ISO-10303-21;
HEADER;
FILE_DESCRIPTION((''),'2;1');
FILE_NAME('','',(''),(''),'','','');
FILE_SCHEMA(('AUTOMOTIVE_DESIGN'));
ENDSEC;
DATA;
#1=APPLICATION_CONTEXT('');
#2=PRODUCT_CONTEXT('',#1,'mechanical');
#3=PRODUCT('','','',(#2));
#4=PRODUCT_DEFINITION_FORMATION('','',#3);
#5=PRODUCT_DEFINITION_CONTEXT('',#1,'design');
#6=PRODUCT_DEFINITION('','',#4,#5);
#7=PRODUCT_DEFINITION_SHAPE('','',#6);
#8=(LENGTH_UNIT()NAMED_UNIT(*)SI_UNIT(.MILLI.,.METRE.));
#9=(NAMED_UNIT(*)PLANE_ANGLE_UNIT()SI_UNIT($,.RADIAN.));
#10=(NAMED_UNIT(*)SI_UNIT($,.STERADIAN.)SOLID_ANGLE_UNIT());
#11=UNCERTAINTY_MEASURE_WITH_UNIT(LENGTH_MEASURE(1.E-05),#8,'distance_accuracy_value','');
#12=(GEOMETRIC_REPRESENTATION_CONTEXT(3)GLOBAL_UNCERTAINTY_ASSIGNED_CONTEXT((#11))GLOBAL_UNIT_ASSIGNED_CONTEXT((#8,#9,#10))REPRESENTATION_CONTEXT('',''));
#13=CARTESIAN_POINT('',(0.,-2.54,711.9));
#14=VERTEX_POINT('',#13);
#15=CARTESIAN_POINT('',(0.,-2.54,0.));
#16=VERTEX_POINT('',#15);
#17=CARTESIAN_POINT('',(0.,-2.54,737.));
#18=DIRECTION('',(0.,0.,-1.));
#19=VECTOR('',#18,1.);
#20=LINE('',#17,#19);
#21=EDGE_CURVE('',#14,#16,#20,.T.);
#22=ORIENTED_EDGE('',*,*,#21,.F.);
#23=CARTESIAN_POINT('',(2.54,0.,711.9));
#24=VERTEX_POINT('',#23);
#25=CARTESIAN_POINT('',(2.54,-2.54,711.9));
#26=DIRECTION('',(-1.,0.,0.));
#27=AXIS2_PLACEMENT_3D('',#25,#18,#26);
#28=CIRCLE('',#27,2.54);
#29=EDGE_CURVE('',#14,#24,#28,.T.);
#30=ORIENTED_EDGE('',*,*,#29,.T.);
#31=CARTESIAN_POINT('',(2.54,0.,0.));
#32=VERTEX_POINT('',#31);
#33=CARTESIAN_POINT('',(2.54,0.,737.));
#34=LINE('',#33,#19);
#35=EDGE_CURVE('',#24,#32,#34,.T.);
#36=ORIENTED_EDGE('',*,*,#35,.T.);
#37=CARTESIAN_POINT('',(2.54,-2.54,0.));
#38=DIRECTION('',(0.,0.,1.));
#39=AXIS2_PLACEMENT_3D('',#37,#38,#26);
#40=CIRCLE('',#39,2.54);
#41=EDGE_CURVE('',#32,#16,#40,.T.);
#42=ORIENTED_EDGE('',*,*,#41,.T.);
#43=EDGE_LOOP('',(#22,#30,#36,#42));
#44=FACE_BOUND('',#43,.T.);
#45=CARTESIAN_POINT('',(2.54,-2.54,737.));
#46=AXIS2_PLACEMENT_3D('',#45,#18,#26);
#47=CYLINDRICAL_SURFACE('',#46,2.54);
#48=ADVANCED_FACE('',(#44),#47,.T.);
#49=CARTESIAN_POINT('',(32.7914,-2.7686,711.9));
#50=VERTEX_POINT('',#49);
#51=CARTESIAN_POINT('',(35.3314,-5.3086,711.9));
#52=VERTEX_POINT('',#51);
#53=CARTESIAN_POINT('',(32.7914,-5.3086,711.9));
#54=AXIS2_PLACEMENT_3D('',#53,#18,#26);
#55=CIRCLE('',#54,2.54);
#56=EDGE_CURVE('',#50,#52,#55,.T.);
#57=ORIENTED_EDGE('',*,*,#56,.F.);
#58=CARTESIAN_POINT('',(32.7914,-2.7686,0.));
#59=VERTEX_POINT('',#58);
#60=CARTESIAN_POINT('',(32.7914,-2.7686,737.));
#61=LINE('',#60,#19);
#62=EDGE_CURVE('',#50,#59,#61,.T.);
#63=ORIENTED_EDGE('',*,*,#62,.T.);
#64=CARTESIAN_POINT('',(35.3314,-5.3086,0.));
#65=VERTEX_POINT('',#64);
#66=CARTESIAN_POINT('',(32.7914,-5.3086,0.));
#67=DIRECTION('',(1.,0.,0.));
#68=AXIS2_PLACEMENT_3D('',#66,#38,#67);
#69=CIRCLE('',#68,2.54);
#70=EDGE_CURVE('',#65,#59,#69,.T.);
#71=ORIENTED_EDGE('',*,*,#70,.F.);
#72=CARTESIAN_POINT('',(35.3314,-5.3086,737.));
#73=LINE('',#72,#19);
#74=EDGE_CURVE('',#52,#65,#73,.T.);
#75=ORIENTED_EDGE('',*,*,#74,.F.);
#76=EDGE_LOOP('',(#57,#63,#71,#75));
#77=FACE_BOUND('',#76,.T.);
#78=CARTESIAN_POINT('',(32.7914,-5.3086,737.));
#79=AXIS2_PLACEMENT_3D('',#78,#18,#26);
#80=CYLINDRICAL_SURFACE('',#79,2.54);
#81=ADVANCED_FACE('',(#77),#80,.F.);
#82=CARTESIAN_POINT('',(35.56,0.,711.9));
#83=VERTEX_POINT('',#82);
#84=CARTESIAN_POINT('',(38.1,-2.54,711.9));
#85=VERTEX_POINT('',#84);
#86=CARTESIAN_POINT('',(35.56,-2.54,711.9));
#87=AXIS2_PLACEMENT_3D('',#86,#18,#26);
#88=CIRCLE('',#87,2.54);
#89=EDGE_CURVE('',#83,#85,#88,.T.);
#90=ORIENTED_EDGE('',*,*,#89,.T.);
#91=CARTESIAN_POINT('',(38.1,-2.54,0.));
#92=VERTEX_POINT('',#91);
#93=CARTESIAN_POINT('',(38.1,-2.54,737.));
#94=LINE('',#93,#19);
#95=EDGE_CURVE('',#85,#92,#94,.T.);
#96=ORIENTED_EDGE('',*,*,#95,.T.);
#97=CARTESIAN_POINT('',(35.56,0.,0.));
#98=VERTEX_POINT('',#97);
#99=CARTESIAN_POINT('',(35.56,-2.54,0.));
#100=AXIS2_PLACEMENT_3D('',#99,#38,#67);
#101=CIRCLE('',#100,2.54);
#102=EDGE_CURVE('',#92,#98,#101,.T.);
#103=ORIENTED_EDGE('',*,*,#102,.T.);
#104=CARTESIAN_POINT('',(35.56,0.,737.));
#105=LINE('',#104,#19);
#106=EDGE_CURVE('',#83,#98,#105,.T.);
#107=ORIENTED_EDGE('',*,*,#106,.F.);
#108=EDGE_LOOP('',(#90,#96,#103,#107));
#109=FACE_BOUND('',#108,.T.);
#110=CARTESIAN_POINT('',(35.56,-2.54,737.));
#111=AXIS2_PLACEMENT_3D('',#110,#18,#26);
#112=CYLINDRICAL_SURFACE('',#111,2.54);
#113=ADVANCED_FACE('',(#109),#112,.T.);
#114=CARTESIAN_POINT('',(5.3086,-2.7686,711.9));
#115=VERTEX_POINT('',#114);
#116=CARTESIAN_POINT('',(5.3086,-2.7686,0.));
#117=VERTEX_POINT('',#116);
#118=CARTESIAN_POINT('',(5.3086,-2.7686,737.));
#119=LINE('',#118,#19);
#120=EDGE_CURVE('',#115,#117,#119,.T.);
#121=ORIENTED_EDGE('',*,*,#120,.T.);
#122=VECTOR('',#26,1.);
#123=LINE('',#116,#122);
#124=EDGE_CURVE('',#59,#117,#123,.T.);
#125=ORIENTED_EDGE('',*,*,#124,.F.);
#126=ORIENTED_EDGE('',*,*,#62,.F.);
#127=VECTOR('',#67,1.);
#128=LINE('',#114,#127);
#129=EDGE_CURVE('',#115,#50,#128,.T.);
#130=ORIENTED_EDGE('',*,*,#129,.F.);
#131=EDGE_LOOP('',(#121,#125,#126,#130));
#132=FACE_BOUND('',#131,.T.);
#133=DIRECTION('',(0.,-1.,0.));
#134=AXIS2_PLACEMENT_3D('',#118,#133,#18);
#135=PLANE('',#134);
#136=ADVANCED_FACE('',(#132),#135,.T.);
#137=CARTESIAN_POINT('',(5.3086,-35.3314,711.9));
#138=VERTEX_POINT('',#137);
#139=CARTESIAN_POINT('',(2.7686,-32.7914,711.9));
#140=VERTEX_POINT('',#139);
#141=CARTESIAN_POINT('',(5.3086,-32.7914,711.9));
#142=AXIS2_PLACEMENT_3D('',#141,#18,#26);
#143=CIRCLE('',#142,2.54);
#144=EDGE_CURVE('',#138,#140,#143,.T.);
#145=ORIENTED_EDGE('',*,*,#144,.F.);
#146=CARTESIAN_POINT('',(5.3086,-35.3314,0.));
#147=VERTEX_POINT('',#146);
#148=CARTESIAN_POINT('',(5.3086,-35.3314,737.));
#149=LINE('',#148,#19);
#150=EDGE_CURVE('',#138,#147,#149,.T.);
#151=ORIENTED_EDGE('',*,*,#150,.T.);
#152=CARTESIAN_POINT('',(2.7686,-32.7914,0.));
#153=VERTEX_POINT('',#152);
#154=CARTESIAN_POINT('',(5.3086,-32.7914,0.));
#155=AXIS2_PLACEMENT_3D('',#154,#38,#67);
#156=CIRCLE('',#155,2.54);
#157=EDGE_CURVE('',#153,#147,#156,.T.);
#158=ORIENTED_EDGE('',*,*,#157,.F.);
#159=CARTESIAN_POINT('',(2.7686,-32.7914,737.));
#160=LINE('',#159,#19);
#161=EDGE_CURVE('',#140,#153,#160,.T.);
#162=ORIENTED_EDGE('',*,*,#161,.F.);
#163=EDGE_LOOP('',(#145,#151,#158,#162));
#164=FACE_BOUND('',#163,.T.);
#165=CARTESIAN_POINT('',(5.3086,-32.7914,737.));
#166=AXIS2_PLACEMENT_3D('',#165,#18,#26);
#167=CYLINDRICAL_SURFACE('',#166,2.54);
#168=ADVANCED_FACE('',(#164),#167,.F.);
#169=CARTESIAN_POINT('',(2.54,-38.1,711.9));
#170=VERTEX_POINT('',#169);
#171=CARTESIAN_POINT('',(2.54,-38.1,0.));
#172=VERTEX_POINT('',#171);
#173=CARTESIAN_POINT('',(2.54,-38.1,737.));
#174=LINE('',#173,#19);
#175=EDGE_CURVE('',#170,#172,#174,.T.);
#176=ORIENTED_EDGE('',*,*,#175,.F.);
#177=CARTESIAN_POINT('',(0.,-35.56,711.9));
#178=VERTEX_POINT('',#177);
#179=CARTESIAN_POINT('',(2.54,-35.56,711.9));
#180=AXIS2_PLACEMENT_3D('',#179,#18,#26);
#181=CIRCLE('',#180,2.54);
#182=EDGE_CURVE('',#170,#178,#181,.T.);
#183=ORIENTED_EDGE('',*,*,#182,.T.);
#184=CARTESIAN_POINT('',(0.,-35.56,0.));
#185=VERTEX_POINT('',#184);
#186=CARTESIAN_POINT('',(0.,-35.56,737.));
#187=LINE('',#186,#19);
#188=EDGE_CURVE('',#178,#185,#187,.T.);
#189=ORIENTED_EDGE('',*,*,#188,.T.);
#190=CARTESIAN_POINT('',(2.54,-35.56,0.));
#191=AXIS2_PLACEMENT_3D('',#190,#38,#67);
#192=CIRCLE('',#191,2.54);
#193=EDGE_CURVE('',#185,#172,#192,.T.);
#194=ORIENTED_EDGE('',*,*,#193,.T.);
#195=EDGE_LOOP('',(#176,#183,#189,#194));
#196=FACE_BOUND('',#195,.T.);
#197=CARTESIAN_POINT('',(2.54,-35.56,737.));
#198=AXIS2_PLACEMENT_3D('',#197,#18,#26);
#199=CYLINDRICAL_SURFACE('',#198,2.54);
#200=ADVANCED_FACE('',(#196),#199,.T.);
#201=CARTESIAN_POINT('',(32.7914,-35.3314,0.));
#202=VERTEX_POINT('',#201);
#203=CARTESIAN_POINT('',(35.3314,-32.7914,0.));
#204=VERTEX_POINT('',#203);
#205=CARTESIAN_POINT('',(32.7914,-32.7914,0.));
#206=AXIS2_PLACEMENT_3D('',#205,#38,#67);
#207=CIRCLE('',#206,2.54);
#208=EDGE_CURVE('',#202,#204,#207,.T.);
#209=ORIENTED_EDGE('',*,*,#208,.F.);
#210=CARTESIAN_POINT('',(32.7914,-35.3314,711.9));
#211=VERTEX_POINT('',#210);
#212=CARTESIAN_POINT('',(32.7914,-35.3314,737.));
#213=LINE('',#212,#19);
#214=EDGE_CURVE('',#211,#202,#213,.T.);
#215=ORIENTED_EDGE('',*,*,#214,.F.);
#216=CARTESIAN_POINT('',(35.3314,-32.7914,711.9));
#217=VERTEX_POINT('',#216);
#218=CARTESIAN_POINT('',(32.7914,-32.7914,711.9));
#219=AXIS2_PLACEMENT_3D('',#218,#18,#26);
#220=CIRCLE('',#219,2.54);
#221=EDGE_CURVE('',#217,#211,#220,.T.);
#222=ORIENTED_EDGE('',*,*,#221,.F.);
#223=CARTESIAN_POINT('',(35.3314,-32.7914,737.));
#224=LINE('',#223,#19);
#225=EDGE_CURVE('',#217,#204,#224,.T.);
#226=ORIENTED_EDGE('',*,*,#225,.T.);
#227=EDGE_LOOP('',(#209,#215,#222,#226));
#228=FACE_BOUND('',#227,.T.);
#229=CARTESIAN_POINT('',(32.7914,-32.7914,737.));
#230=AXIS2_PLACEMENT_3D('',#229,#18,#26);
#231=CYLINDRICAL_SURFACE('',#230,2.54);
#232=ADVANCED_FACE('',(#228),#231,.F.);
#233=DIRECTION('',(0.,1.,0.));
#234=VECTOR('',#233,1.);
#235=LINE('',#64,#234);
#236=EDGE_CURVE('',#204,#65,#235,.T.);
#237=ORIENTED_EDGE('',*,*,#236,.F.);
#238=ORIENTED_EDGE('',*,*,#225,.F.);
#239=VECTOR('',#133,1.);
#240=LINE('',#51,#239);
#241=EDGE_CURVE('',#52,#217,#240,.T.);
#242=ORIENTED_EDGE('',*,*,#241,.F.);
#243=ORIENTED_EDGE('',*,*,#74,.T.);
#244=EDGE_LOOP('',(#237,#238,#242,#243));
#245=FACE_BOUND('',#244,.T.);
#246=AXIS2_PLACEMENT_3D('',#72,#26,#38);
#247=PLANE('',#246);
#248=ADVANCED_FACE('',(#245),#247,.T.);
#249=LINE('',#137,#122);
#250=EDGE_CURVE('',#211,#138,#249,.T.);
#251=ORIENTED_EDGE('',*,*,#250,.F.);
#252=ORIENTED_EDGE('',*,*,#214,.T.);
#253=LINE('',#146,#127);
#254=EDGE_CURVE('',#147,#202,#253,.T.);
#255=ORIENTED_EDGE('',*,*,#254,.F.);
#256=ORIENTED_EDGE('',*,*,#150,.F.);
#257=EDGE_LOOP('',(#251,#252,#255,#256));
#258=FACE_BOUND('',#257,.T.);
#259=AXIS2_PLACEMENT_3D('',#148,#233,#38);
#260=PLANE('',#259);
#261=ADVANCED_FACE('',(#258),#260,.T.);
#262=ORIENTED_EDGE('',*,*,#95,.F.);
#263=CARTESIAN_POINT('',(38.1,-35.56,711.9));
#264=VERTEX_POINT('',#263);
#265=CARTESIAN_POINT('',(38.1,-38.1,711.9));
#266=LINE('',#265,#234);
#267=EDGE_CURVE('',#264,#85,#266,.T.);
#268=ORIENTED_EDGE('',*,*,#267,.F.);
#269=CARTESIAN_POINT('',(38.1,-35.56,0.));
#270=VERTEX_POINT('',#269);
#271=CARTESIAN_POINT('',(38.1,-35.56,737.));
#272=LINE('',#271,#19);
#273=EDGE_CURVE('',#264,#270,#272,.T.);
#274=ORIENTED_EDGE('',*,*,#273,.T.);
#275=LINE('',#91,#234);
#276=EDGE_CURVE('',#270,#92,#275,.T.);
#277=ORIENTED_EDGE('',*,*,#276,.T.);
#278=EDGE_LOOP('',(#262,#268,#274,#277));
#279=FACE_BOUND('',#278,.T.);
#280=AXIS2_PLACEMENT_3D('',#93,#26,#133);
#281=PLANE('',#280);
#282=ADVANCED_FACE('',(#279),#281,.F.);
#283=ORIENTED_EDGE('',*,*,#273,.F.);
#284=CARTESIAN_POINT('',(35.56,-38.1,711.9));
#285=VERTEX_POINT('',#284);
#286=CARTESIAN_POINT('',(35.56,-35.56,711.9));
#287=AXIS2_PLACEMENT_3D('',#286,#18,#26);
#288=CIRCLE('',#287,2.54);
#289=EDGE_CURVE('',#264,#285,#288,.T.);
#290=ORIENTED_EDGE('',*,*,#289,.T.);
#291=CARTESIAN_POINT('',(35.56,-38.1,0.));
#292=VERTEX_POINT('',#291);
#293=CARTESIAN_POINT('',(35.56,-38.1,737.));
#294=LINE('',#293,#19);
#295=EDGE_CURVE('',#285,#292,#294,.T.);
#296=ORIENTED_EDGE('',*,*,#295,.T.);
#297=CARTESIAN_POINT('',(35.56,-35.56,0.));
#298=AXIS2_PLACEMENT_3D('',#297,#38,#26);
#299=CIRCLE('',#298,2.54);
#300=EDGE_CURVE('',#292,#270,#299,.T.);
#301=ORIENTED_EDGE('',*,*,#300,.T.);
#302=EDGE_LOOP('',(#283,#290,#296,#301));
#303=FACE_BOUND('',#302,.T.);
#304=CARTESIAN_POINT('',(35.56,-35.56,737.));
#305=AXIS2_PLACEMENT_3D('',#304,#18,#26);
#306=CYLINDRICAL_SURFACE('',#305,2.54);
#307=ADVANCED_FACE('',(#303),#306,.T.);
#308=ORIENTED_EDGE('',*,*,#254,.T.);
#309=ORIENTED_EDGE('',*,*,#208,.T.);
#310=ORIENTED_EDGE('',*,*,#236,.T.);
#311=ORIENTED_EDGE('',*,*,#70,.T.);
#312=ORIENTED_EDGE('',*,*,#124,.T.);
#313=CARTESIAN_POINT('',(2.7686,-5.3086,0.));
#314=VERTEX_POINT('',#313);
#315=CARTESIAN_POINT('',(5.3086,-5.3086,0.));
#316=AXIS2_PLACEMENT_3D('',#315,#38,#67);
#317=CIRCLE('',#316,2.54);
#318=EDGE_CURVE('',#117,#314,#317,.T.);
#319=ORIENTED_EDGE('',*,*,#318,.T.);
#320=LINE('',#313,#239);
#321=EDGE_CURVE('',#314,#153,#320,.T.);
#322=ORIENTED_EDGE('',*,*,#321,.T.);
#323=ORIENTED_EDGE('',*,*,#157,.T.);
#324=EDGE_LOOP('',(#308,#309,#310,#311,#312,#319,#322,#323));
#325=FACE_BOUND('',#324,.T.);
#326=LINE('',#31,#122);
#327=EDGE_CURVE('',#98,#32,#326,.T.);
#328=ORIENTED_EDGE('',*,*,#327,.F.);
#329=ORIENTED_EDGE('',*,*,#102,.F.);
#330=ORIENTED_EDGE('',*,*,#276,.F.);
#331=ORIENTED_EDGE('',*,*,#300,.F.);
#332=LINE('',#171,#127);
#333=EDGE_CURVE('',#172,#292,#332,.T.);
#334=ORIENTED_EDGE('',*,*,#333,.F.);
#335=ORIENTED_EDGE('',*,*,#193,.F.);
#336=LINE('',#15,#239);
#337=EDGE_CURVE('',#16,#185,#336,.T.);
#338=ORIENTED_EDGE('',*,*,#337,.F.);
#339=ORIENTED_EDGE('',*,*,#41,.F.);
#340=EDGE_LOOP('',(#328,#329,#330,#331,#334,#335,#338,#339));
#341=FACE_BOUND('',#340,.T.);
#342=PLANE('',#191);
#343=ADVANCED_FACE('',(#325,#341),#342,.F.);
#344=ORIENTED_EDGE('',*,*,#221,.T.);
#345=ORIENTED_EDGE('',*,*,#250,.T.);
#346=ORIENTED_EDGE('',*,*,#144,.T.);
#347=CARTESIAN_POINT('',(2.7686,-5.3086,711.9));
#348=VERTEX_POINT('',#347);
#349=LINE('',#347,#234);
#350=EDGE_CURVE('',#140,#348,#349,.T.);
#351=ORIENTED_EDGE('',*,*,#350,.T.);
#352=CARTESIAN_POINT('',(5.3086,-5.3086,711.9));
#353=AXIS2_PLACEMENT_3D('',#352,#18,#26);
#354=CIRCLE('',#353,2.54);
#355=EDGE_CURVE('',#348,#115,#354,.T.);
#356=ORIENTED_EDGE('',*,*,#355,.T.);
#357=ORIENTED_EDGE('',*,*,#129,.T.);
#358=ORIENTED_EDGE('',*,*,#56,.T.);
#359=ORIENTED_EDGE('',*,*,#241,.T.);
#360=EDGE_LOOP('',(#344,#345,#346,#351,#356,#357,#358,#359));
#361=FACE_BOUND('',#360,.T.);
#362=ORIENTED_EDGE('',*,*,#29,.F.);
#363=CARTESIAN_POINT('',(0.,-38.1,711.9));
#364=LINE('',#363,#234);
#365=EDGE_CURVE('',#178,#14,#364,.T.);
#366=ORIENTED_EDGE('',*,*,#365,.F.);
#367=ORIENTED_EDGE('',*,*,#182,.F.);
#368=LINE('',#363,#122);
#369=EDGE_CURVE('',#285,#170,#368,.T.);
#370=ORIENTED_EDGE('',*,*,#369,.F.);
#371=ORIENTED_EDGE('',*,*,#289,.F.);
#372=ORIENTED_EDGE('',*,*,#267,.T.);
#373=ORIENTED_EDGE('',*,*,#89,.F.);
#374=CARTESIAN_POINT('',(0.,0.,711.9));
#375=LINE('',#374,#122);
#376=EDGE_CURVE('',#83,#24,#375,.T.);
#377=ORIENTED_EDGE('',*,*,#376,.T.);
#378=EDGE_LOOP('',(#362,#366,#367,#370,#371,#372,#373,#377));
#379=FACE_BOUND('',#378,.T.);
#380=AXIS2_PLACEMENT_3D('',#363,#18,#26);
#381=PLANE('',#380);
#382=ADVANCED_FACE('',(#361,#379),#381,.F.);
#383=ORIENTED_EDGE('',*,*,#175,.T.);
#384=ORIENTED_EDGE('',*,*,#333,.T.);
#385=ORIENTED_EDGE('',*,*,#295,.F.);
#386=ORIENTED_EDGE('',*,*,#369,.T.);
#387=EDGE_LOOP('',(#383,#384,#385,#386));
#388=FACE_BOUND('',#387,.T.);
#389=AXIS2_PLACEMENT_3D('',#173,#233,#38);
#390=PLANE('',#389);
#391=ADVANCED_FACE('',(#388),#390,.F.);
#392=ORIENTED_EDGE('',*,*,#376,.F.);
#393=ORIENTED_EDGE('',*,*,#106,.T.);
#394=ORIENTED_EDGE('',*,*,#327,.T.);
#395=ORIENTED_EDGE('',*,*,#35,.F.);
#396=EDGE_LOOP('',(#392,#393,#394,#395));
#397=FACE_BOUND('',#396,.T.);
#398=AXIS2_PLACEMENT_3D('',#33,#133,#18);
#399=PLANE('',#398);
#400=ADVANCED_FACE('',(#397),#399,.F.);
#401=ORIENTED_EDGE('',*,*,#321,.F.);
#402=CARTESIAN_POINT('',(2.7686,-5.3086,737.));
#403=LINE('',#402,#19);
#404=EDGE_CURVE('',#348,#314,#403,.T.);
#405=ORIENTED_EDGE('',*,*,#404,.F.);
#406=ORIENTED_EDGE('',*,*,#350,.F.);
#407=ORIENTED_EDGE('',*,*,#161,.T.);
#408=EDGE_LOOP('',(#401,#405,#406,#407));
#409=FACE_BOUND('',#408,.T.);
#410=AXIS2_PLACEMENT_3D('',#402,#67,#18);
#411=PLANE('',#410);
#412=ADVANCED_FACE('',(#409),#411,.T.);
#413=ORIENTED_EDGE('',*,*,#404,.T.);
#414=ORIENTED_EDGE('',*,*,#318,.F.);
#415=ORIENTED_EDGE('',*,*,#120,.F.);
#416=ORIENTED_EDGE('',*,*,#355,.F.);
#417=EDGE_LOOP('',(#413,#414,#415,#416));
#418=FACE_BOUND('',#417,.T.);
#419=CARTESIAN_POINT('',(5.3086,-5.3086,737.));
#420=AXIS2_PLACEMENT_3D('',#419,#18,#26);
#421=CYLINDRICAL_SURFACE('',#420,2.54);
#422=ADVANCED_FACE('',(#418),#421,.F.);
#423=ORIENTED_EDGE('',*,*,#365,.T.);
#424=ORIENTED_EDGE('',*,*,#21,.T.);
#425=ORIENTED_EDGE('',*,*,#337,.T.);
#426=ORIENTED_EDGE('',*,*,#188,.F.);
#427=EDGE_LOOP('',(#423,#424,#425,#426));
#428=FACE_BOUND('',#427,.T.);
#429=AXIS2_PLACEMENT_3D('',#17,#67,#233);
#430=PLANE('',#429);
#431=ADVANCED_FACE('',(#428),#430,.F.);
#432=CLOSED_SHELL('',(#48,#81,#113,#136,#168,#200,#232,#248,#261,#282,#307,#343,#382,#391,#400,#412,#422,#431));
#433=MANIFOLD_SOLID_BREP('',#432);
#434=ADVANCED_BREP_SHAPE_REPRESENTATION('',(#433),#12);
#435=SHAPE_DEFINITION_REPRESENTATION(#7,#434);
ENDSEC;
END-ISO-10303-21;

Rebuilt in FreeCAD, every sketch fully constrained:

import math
import FreeCAD as App
import Part
import Sketcher

V = App.Vector
Q = App.Units.Quantity


def add_polygon(sketch, points):
    """Adds a closed chain of lines whose ends are joined by coincident constraints."""
    first, n = sketch.GeometryCount, len(points)
    for a, b in zip(points, points[1:] + points[:1]):
        sketch.addGeometry(Part.LineSegment(App.Vector(*a, 0), App.Vector(*b, 0)), False)
    for i in range(n):
        sketch.addConstraint(Sketcher.Constraint("Coincident", first + i, 2, first + (i + 1) % n, 1))

doc = App.newDocument("Part")
params = doc.addObject("Spreadsheet::Sheet", "Params")
for row, (alias, value) in enumerate([
    ("sketch1_radius", "0.1 in"),
    ("sketch1_width", "1.3 in"),
    ("sketch1_width2", "1.082 in"),
    ("pad1_length", "737 mm"),
    ("sketch2_width", "1.5 in"),
], start=1):
    params.set(f"A{row}", alias)
    params.set(f"B{row}", "=" + value)
    params.setAlias(f"B{row}", alias)

body = doc.addObject("PartDesign::Body", "Body")

sketch1 = body.newObject("Sketcher::SketchObject", "Sketch")
sketch1.AttachmentSupport = (doc.getObject("XY_Plane"), [""])
sketch1.MapMode = "FlatFace"
sketch1.addGeometry([
    Part.LineSegment(V(35.6, 0, 0), V(2.5, 0, 0)),
    Part.ArcOfCircle(Part.Circle(V(2.5, -2.5, 0), V(0, 0, 1), 2.5), math.radians(90), math.radians(180)),
    Part.LineSegment(V(0, -2.5, 0), V(0, -35.6, 0)),
    Part.ArcOfCircle(Part.Circle(V(2.5, -35.6, 0), V(0, 0, 1), 2.5), math.radians(-180), math.radians(-90)),
    Part.LineSegment(V(2.5, -38.1, 0), V(35.6, -38.1, 0)),
    Part.ArcOfCircle(Part.Circle(V(35.6, -35.6, 0), V(0, 0, 1), 2.5), math.radians(-90), math.radians(0)),
    Part.LineSegment(V(38.1, -35.6, 0), V(38.1, -2.5, 0)),
    Part.ArcOfCircle(Part.Circle(V(35.6, -2.5, 0), V(0, 0, 1), 2.5), math.radians(0), math.radians(90)),
    Part.LineSegment(V(5.3, -2.8, 0), V(32.8, -2.8, 0)),
    Part.ArcOfCircle(Part.Circle(V(32.8, -5.3, 0), V(0, 0, 1), 2.5), math.radians(0), math.radians(90)),
    Part.LineSegment(V(35.3, -5.3, 0), V(35.3, -32.8, 0)),
    Part.ArcOfCircle(Part.Circle(V(32.8, -32.8, 0), V(0, 0, 1), 2.5), math.radians(-90), math.radians(0)),
    Part.LineSegment(V(32.8, -35.3, 0), V(5.3, -35.3, 0)),
    Part.ArcOfCircle(Part.Circle(V(5.3, -32.8, 0), V(0, 0, 1), 2.5), math.radians(-180), math.radians(-90)),
    Part.LineSegment(V(2.8, -32.8, 0), V(2.8, -5.3, 0)),
    Part.ArcOfCircle(Part.Circle(V(5.3, -5.3, 0), V(0, 0, 1), 2.5), math.radians(90), math.radians(180)),
], False)
sketch1.addConstraint([
    Sketcher.Constraint("Tangent", 0, 2, 1, 1),
    Sketcher.Constraint("Tangent", 1, 2, 2, 1),
    Sketcher.Constraint("Tangent", 2, 2, 3, 1),
    Sketcher.Constraint("Tangent", 3, 2, 4, 1),
    Sketcher.Constraint("Tangent", 4, 2, 5, 1),
    Sketcher.Constraint("Tangent", 5, 2, 6, 1),
    Sketcher.Constraint("Tangent", 6, 2, 7, 1),
    Sketcher.Constraint("Tangent", 7, 2, 0, 1),
    Sketcher.Constraint("Tangent", 8, 2, 9, 2),
    Sketcher.Constraint("Tangent", 9, 1, 10, 1),
    Sketcher.Constraint("Tangent", 10, 2, 11, 2),
    Sketcher.Constraint("Tangent", 11, 1, 12, 1),
    Sketcher.Constraint("Tangent", 12, 2, 13, 2),
    Sketcher.Constraint("Tangent", 13, 1, 14, 1),
    Sketcher.Constraint("Tangent", 14, 2, 15, 2),
    Sketcher.Constraint("Tangent", 15, 1, 8, 1),
    Sketcher.Constraint("Horizontal", 0),
    Sketcher.Constraint("Vertical", 2),
    Sketcher.Constraint("Horizontal", 4),
    Sketcher.Constraint("Vertical", 6),
    Sketcher.Constraint("Horizontal", 8),
    Sketcher.Constraint("Vertical", 10),
    Sketcher.Constraint("Horizontal", 12),
    Sketcher.Constraint("Vertical", 14),
    Sketcher.Constraint("Equal", 1, 3),
    Sketcher.Constraint("Equal", 3, 5),
    Sketcher.Constraint("Equal", 5, 7),
    Sketcher.Constraint("Equal", 7, 9),
    Sketcher.Constraint("Equal", 9, 11),
    Sketcher.Constraint("Equal", 11, 13),
    Sketcher.Constraint("Equal", 13, 15),
    Sketcher.Constraint("PointOnObject", 0, 2, -1),
    Sketcher.Constraint("PointOnObject", 1, 2, -2),
    Sketcher.Constraint("Equal", 4, 2),
    Sketcher.Constraint("Equal", 12, 10),
    Sketcher.Constraint("Radius", 1, Q("0.1 in")),
    Sketcher.Constraint("DistanceX", 0, 2, 0, 1, Q("1.3 in")),
    Sketcher.Constraint("DistanceX", 8, 1, 8, 2, Q("1.082 in")),
    Sketcher.Constraint("DistanceX", -1, 1, 9, 3, Q("1.291 in")),
    Sketcher.Constraint("DistanceY", 9, 3, -1, 1, Q("0.209 in")),
])
sketch1.setExpression("Constraints[35]", "Params.sketch1_radius")
sketch1.setExpression("Constraints[36]", "Params.sketch1_width")
sketch1.setExpression("Constraints[37]", "Params.sketch1_width2")
pad1 = body.newObject("PartDesign::Pad", "Pad")
pad1.Profile = sketch1
pad1.setExpression("Length", "Params.pad1_length")

sketch2 = body.newObject("Sketcher::SketchObject", "Sketch001")
sketch2.AttachmentSupport = (doc.getObject("XZ_Plane"), [""])
sketch2.MapMode = "FlatFace"
add_polygon(sketch2, [(0, 712), (0, 737), (38, 737), (38, 712)])
sketch2.addConstraint([
    Sketcher.Constraint("Vertical", 0),
    Sketcher.Constraint("Horizontal", 1),
    Sketcher.Constraint("Vertical", 2),
    Sketcher.Constraint("Horizontal", 3),
    Sketcher.Constraint("PointOnObject", 0, 2, -2),
    Sketcher.Constraint("DistanceX", 1, 1, 1, 2, Q("1.5 in")),
    Sketcher.Constraint("DistanceY", 0, 1, 0, 2, Q("25.1 mm")),
    Sketcher.Constraint("DistanceY", -1, 1, 0, 2, Q("737 mm")),
])
sketch2.setExpression("Constraints[9]", "Params.sketch2_width")
pocket1 = body.newObject("PartDesign::Pocket", "Pocket")
pocket1.Profile = sketch2
pocket1.Type = "ThroughAll"
pocket1.Reversed = True

doc.recompute()
